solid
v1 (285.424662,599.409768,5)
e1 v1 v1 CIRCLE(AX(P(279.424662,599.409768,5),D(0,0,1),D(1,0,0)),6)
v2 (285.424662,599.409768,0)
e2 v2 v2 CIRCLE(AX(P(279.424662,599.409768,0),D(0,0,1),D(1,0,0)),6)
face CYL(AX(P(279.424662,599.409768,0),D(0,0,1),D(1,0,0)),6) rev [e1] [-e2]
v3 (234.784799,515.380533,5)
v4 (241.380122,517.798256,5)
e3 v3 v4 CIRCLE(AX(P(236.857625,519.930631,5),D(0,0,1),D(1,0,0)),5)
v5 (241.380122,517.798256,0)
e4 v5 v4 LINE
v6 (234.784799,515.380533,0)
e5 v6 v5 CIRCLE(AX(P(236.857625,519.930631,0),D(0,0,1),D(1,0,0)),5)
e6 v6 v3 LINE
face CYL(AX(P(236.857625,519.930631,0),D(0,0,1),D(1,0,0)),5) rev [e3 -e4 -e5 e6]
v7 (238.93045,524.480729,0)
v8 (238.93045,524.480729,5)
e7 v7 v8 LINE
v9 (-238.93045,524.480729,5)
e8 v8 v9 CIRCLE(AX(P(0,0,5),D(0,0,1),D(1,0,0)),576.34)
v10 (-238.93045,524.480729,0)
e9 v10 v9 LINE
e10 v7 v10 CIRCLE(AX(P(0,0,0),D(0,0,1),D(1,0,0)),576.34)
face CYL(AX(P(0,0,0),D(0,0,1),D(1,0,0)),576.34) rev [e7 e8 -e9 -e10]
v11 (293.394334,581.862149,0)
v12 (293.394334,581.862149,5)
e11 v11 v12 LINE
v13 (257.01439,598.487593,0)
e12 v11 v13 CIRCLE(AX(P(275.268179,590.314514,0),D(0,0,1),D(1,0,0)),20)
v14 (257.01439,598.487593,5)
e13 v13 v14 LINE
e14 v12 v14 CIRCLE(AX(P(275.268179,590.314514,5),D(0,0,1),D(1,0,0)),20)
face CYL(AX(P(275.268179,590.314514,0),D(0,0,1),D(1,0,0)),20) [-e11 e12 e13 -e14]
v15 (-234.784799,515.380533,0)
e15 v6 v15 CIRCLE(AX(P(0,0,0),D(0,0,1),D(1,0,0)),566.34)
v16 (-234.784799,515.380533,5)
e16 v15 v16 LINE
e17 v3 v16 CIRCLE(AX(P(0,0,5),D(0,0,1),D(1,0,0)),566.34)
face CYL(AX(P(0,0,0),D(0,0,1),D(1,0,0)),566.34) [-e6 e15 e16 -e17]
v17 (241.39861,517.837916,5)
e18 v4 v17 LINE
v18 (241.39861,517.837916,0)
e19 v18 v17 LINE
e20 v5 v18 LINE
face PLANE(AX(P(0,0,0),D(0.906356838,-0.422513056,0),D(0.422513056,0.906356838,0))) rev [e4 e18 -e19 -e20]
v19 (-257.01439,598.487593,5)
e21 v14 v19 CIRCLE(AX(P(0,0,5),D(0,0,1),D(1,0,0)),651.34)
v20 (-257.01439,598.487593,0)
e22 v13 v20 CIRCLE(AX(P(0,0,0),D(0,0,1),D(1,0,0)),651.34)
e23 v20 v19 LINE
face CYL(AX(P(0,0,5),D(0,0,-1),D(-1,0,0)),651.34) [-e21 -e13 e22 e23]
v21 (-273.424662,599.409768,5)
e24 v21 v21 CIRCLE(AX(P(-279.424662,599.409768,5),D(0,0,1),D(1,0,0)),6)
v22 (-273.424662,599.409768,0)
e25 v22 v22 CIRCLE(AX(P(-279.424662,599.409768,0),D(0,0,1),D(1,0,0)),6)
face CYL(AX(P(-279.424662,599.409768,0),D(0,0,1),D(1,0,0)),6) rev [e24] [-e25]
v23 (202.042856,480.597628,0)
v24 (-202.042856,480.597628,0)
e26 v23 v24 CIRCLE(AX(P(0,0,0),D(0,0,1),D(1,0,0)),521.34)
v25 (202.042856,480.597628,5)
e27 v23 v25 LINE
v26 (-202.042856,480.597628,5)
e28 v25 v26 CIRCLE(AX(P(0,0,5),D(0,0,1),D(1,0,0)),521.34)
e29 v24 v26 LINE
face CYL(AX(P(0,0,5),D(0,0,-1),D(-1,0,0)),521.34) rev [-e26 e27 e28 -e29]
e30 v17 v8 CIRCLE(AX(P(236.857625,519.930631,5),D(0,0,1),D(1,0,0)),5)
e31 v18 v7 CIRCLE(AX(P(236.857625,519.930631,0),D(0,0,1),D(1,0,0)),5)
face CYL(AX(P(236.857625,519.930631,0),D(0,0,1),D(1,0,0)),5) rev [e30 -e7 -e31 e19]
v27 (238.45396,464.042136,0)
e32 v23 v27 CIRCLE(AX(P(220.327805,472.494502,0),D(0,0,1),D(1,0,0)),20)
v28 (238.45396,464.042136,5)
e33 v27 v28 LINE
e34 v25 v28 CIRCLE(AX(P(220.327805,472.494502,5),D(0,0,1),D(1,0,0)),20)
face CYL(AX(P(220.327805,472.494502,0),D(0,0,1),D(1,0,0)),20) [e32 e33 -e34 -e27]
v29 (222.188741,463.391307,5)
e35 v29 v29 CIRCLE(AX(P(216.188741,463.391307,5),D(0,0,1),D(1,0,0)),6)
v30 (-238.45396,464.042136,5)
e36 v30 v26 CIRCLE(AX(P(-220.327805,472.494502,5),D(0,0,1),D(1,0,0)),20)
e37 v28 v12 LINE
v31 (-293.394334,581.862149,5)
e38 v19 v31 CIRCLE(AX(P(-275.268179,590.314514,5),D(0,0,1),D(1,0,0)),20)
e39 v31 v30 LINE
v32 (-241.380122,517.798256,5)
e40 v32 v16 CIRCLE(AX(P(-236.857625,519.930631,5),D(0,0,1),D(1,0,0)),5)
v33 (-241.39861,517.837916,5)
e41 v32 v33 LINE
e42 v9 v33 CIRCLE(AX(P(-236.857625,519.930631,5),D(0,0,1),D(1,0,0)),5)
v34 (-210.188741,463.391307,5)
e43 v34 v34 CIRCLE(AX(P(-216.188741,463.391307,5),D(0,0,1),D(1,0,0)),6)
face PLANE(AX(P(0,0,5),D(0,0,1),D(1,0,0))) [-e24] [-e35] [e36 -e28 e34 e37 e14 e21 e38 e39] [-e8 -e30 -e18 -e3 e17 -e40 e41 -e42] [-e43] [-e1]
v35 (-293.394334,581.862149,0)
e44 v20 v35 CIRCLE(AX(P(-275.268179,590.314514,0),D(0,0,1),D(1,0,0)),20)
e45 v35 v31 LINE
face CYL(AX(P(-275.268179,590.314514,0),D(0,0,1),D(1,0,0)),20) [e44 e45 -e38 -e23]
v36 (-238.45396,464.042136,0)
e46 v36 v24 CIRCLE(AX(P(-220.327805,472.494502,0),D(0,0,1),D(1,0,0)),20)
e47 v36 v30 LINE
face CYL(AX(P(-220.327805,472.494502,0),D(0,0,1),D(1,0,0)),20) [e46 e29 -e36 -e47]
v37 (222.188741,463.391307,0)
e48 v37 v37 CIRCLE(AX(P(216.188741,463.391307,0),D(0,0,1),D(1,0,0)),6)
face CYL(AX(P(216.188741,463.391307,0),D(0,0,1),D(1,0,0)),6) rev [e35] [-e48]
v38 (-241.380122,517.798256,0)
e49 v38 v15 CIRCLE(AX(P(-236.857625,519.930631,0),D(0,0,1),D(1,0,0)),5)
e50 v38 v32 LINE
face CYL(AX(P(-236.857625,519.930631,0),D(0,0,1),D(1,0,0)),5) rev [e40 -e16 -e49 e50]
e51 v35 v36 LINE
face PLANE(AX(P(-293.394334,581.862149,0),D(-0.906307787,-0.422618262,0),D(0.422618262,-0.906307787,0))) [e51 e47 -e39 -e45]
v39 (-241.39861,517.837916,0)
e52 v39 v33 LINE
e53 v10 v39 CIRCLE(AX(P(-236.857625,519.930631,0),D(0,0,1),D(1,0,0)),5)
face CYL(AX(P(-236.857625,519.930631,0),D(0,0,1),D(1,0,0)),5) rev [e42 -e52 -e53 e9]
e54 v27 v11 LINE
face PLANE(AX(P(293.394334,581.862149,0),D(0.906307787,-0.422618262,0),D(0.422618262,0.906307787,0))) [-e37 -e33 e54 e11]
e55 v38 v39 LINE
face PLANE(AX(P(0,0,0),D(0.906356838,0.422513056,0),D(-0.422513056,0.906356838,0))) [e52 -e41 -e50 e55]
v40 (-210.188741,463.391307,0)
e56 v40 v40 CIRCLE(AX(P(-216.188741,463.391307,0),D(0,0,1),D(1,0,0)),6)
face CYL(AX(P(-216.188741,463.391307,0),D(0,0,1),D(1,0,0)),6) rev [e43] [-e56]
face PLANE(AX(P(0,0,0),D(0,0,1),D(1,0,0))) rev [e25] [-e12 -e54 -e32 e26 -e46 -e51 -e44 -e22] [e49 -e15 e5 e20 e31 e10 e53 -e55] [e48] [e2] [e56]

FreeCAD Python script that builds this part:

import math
import FreeCAD as App
import Part
import Sketcher

V = App.Vector
Q = App.Units.Quantity

doc = App.newDocument("Part")
params = doc.addObject("Spreadsheet::Sheet", "Params")
for row, (alias, value) in enumerate([
    ("sketch1_radius", "651.34 mm"),
    ("sketch1_radius2", "521.34 mm"),
    ("sketch1_length", "80 mm"),
    ("pad1_length", "5 mm"),
    ("sketch2_diameter", "12 mm"),
    ("sketch2_radius", "20 mm"),
    ("sketch2_radius2", "521.34 mm"),
    ("sketch2_radius3", "651.34 mm"),
    ("sketch2_length", "130 mm"),
    ("pad2_length", "5 mm"),
    ("sketch3_radius", "5 mm"),
    ("sketch3_radius2", "576.34 mm"),
], start=1):
    params.set(f"A{row}", alias)
    params.set(f"B{row}", "=" + value)
    params.setAlias(f"B{row}", alias)

body = doc.addObject("PartDesign::Body", "Body")

# Sketch on XY plane
sketch1 = doc.addObject("Sketcher::SketchObject", "Sketch")
body.addObject(sketch1)
sketch1.AttachmentSupport = (doc.XY_Plane, [""])
sketch1.MapMode = "FlatFace"
sketch1.addGeometry([
    Part.LineSegment(V(241, 518, 0), V(275, 590, 0)),  # 0
    Part.ArcOfCircle(Part.Circle(V(0, 0, 0), V(0, 0, 1), 651), math.radians(65), math.radians(115)),  # 1
    Part.LineSegment(V(-275, 590, 0), V(-241, 518, 0)),  # 2
    Part.LineSegment(V(-241, 518, 0), V(-220, 472, 0)),  # 3
    Part.ArcOfCircle(Part.Circle(V(0, 0, 0), V(0, 0, 1), 521), math.radians(65), math.radians(115)),  # 4
    Part.LineSegment(V(220, 472, 0), V(241, 518, 0)),  # 5
], False)
sketch1.addConstraint([
    Sketcher.Constraint("Coincident", 0, 2, 1, 1),
    Sketcher.Constraint("Coincident", 1, 2, 2, 1),
    Sketcher.Constraint("Coincident", 2, 2, 3, 1),
    Sketcher.Constraint("Coincident", 3, 2, 4, 2),
    Sketcher.Constraint("Coincident", 4, 1, 5, 1),
    Sketcher.Constraint("Coincident", 5, 2, 0, 1),
    Sketcher.Constraint("Coincident", 1, 3, -1, 1),
    Sketcher.Constraint("Coincident", 4, 3, -1, 1),
    Sketcher.Constraint("Symmetric", 2, 2, 5, 2, -2),
    Sketcher.Constraint("Parallel", 2, 3),
    Sketcher.Constraint("Parallel", 0, 5),
    Sketcher.Constraint("Angle", 0, Q("65 deg")),
    Sketcher.Constraint("Angle", 2, Q("-65 deg")),
    Sketcher.Constraint("Radius", 1, Q("651.34 mm")),
    Sketcher.Constraint("Radius", 4, Q("521.34 mm")),
    Sketcher.Constraint("Distance", 0, Q("80 mm")),
    Sketcher.Constraint("DistanceY", -1, 1, 3, 2, Q("472.494502 mm")),
])
sketch1.setExpression("Constraints[13]", "Params.sketch1_radius")
sketch1.setExpression("Constraints[14]", "Params.sketch1_radius2")
sketch1.setExpression("Constraints[15]", "Params.sketch1_length")
pad1 = doc.addObject("PartDesign::Pad", "Pad")
body.addObject(pad1)
pad1.Profile = sketch1
pad1.setExpression("Length", "Params.pad1_length")

# Sketch on XY plane
sketch2 = doc.addObject("Sketcher::SketchObject", "Sketch001")
body.addObject(sketch2)
sketch2.AttachmentSupport = (doc.XY_Plane, [""])
sketch2.MapMode = "FlatFace"
sketch2.addGeometry([
    Part.LineSegment(V(-293, 582, 0), V(-238, 464, 0)),  # 0
    Part.ArcOfCircle(Part.Circle(V(-220, 472, 0), V(0, 0, 1), 20), math.radians(-155), math.radians(24)),  # 1
    Part.ArcOfCircle(Part.Circle(V(0, 0, 0), V(0, 0, 1), 521), math.radians(67), math.radians(113)),  # 2
    Part.ArcOfCircle(Part.Circle(V(220, 472, 0), V(0, 0, 1), 20), math.radians(156), math.radians(335)),  # 3
    Part.LineSegment(V(238, 464, 0), V(293, 582, 0)),  # 4
    Part.ArcOfCircle(Part.Circle(V(275, 590, 0), V(0, 0, 1), 20), math.radians(-25), math.radians(156)),  # 5
    Part.ArcOfCircle(Part.Circle(V(0, 0, 0), V(0, 0, 1), 651), math.radians(67), math.radians(113)),  # 6
    Part.ArcOfCircle(Part.Circle(V(-275, 590, 0), V(0, 0, 1), 20), math.radians(24), math.radians(205)),  # 7
    Part.Circle(V(-216, 463, 0), V(0, 0, 1), 6),  # 8
    Part.Circle(V(216, 463, 0), V(0, 0, 1), 6),  # 9
    Part.Circle(V(-279, 599, 0), V(0, 0, 1), 6),  # 10
    Part.Circle(V(279, 599, 0), V(0, 0, 1), 6),  # 11
], False)
sketch2.addConstraint([
    Sketcher.Constraint("Tangent", 0, 2, 1, 1),
    Sketcher.Constraint("Coincident", 1, 2, 2, 2),
    Sketcher.Constraint("Coincident", 2, 1, 3, 1),
    Sketcher.Constraint("Tangent", 3, 2, 4, 1),
    Sketcher.Constraint("Tangent", 4, 2, 5, 1),
    Sketcher.Constraint("Coincident", 5, 2, 6, 1),
    Sketcher.Constraint("Coincident", 6, 2, 7, 1),
    Sketcher.Constraint("Tangent", 7, 2, 0, 1),
    Sketcher.Constraint("Coincident", 2, 3, -1, 1),
    Sketcher.Constraint("Coincident", 6, 3, -1, 1),
    Sketcher.Constraint("Equal", 1, 3),
    Sketcher.Constraint("Equal", 3, 5),
    Sketcher.Constraint("Equal", 5, 7),
    Sketcher.Constraint("Equal", 8, 9),
    Sketcher.Constraint("Equal", 9, 10),
    Sketcher.Constraint("Equal", 10, 11),
    Sketcher.Constraint("Symmetric", 1, 3, 3, 3, -2),
    Sketcher.Constraint("Symmetric", 5, 3, 7, 3, -2),
    Sketcher.Constraint("Symmetric", 8, 3, 9, 3, -2),
    Sketcher.Constraint("Symmetric", 10, 3, 11, 3, -2),
    Sketcher.Constraint("Diameter", 8, Q("12 mm")),
    Sketcher.Constraint("Radius", 1, Q("20 mm")),
    Sketcher.Constraint("Angle", 0, Q("-65 deg")),
    Sketcher.Constraint("Radius", 2, Q("521.34 mm")),
    Sketcher.Constraint("Radius", 6, Q("651.34 mm")),
    Sketcher.Constraint("Distance", 0, Q("130 mm")),
    Sketcher.Constraint("DistanceY", -1, 1, 1, 3, Q("472.494502 mm")),
    Sketcher.Constraint("DistanceX", 10, 3, 0, 2, Q("40.970702 mm")),
    Sketcher.Constraint("DistanceX", 0, 2, 9, 3, Q("454.642702 mm")),
    Sketcher.Constraint("DistanceX", -1, 1, 5, 3, Q("275.268179 mm")),
    Sketcher.Constraint("DistanceY", 8, 3, 10, 3, Q("136.018461 mm")),
    Sketcher.Constraint("DistanceY", 8, 3, 0, 2, Q("0.65083 mm")),
])
sketch2.setExpression("Constraints[20]", "Params.sketch2_diameter")
sketch2.setExpression("Constraints[21]", "Params.sketch2_radius")
sketch2.setExpression("Constraints[23]", "Params.sketch2_radius2")
sketch2.setExpression("Constraints[24]", "Params.sketch2_radius3")
sketch2.setExpression("Constraints[25]", "Params.sketch2_length")
pad2 = doc.addObject("PartDesign::Pad", "Pad001")
body.addObject(pad2)
pad2.Profile = sketch2
pad2.setExpression("Length", "Params.pad2_length")

# Sketch on XY plane
sketch3 = doc.addObject("Sketcher::SketchObject", "Sketch002")
body.addObject(sketch3)
sketch3.AttachmentSupport = (doc.XY_Plane, [""])
sketch3.MapMode = "FlatFace"
sketch3.AttachmentOffset = App.Placement(V(0, 0, 5), App.Rotation())
sketch3.addGeometry([
    Part.ArcOfCircle(Part.Circle(V(236.858, 519.931, 0), V(0, 0, 1), 5), math.radians(-114), math.radians(-25)),  # 0
    Part.LineSegment(V(241.38, 517.798, 0), V(241.399, 517.838, 0)),  # 1
    Part.ArcOfCircle(Part.Circle(V(236.858, 519.931, 0), V(0, 0, 1), 5), math.radians(-25), math.radians(66)),  # 2
    Part.ArcOfCircle(Part.Circle(V(0, 0, 0), V(0, 0, 1), 576.34), math.radians(66), math.radians(114)),  # 3
    Part.ArcOfCircle(Part.Circle(V(-236.858, 519.931, 0), V(0, 0, 1), 5), math.radians(114), math.radians(205)),  # 4
    Part.LineSegment(V(-241.399, 517.838, 0), V(-241.38, 517.798, 0)),  # 5
    Part.ArcOfCircle(Part.Circle(V(-236.858, 519.931, 0), V(0, 0, 1), 5), math.radians(-155), math.radians(-66)),  # 6
    Part.ArcOfCircle(Part.Circle(V(0, 0, 0), V(0, 0, 1), 566.34), math.radians(66), math.radians(114)),  # 7
], False)
sketch3.addConstraint([
    Sketcher.Constraint("Coincident", 0, 2, 1, 1),
    Sketcher.Constraint("Coincident", 1, 2, 2, 1),
    Sketcher.Constraint("Tangent", 2, 2, 3, 1),
    Sketcher.Constraint("Tangent", 3, 2, 4, 1),
    Sketcher.Constraint("Coincident", 4, 2, 5, 1),
    Sketcher.Constraint("Coincident", 5, 2, 6, 1),
    Sketcher.Constraint("Tangent", 6, 2, 7, 2),
    Sketcher.Constraint("Tangent", 7, 1, 0, 1),
    Sketcher.Constraint("Coincident", 3, 3, -1, 1),
    Sketcher.Constraint("Coincident", 7, 3, -1, 1),
    Sketcher.Constraint("Coincident", 2, 3, 0, 3),
    Sketcher.Constraint("Coincident", 6, 3, 4, 3),
    Sketcher.Constraint("Equal", 0, 2),
    Sketcher.Constraint("Equal", 2, 4),
    Sketcher.Constraint("Symmetric", 1, 2, 4, 2, -2),
    Sketcher.Constraint("Horizontal", 0, 2, 5, 2),
    Sketcher.Constraint("Radius", 0, Q("5 mm")),
    Sketcher.Constraint("Radius", 3, Q("576.34 mm")),
    Sketcher.Constraint("DistanceX", 6, 2, -1, 1, Q("234.784799 mm")),
    Sketcher.Constraint("DistanceX", -1, 1, 0, 2, Q("241.380122 mm")),
    Sketcher.Constraint("DistanceX", -1, 1, 1, 2, Q("241.39861 mm")),
])
sketch3.setExpression("Constraints[16]", "Params.sketch3_radius")
sketch3.setExpression("Constraints[17]", "Params.sketch3_radius2")
pocket1 = doc.addObject("PartDesign::Pocket", "Pocket")
body.addObject(pocket1)
pocket1.Profile = sketch3
pocket1.Type = "ThroughAll"

doc.recompute()
